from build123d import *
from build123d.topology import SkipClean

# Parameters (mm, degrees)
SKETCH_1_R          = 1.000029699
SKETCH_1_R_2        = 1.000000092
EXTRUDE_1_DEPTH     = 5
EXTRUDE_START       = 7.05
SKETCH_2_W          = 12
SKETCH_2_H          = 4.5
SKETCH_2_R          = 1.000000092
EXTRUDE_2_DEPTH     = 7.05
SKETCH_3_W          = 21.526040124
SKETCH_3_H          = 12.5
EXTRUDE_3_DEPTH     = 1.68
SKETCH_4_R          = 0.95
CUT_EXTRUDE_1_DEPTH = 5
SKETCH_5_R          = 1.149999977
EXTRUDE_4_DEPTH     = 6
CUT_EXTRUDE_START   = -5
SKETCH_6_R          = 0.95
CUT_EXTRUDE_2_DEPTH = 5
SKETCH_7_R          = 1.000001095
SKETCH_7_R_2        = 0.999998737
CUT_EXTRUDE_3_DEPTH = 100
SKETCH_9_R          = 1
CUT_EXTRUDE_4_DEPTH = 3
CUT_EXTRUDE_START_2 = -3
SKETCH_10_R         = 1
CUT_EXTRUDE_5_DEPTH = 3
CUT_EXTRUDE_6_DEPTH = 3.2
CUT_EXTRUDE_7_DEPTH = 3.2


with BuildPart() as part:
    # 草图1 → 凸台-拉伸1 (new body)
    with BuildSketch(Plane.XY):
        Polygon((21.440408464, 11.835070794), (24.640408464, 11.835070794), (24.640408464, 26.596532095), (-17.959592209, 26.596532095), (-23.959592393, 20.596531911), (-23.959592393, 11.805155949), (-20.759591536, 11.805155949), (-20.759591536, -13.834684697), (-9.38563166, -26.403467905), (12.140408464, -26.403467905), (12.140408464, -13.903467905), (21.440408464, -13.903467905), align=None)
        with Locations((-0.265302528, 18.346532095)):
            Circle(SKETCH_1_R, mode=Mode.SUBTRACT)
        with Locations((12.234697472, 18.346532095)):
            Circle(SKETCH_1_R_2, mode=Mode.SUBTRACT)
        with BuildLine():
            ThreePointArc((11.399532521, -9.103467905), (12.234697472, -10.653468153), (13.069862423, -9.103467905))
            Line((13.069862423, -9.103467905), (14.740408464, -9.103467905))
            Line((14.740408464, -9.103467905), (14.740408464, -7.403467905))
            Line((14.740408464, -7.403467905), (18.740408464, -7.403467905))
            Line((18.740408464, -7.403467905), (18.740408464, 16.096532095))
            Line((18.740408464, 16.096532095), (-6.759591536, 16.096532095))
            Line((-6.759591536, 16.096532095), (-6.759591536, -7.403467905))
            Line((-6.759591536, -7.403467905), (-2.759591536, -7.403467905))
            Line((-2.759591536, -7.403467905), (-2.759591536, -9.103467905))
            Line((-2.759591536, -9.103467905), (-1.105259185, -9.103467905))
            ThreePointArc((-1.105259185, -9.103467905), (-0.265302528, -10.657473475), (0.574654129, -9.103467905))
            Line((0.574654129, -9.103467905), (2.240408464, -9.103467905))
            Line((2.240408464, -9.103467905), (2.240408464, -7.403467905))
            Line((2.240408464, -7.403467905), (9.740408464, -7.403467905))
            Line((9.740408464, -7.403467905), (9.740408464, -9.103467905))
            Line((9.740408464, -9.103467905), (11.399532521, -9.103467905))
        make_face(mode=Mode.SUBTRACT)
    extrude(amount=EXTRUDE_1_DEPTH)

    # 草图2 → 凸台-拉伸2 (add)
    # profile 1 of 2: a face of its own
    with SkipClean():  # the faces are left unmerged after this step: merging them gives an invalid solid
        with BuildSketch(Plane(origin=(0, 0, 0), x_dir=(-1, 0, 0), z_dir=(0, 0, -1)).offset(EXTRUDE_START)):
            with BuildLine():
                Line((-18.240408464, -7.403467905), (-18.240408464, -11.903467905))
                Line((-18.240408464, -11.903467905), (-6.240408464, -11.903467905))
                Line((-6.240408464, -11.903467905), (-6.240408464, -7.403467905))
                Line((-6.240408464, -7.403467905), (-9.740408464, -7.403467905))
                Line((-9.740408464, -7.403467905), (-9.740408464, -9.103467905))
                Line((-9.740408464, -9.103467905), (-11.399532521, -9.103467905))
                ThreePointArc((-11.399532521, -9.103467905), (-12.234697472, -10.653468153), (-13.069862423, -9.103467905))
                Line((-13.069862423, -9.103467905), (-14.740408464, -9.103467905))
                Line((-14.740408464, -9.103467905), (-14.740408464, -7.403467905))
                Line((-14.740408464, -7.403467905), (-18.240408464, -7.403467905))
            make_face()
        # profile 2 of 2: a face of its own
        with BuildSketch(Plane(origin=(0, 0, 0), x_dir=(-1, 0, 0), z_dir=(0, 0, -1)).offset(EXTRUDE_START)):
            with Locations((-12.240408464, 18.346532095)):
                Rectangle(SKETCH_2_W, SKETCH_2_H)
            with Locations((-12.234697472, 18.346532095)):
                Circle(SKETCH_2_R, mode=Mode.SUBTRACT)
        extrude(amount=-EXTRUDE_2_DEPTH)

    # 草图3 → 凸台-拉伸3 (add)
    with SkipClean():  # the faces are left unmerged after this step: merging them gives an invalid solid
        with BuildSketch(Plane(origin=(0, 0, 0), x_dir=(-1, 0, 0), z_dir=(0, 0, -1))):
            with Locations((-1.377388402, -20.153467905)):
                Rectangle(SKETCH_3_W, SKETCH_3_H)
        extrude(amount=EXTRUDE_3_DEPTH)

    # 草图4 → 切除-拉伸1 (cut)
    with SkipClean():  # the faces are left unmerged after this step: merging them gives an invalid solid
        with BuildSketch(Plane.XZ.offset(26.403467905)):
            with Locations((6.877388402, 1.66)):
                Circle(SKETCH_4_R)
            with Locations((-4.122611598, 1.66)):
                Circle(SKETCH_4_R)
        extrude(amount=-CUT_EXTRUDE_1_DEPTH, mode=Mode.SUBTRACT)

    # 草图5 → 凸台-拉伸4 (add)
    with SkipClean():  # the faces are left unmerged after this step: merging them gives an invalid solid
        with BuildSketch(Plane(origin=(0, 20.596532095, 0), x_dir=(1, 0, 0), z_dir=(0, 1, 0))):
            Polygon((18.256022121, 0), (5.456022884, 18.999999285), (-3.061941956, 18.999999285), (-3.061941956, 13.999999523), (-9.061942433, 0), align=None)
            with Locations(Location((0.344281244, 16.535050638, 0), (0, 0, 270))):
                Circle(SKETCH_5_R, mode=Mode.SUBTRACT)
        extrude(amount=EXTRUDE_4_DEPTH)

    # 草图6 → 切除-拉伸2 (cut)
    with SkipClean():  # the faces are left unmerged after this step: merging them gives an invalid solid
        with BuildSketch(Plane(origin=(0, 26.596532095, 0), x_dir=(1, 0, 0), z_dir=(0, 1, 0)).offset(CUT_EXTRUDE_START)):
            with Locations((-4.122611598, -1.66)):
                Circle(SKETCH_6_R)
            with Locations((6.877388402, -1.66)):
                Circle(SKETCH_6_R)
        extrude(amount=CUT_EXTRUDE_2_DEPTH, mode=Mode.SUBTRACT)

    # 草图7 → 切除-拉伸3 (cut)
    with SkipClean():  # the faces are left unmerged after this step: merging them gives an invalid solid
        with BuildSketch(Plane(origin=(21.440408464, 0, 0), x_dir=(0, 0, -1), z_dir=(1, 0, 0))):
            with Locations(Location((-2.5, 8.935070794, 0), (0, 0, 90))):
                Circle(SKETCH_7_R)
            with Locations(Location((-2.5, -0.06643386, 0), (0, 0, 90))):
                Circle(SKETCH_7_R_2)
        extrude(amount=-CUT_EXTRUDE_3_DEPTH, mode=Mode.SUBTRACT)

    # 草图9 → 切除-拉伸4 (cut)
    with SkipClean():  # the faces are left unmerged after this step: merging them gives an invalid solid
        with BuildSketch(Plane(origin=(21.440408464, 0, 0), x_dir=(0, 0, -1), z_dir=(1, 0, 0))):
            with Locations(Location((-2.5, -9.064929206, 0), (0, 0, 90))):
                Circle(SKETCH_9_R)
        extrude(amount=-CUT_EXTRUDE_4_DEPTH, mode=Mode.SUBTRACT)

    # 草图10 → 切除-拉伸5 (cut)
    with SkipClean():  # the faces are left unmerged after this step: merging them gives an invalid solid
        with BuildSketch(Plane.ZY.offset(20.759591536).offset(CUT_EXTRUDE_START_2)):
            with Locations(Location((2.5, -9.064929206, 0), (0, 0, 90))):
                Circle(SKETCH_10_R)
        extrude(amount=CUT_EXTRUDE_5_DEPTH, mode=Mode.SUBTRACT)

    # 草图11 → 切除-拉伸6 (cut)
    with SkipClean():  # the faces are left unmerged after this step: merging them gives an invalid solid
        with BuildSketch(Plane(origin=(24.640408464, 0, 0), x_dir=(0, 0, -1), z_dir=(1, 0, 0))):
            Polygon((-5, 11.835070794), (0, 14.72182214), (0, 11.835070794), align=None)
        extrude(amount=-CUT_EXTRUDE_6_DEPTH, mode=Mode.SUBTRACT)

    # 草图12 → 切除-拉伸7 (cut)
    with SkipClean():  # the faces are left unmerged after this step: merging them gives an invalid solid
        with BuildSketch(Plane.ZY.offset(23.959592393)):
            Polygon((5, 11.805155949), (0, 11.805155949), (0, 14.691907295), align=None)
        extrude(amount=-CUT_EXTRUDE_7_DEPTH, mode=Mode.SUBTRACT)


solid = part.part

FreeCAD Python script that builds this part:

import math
import FreeCAD as App
import Part
import Sketcher
Q = App.Units.Quantity

doc = App.newDocument("Part")
body = doc.addObject("PartDesign::Body", "Body")

sketch1 = body.newObject("Sketcher::SketchObject", "Sketch")
sketch1.AttachmentSupport = (doc.getObject("XY_Plane"), [""])
sketch1.MapMode = "FlatFace"
sketch1.addGeometry(Part.LineSegment(App.Vector(21.440408, 11.835071, 0), App.Vector(24.640408, 11.835071, 0)), False)
sketch1.addGeometry(Part.LineSegment(App.Vector(24.640408, 11.835071, 0), App.Vector(24.640408, 26.596532, 0)), False)
sketch1.addGeometry(Part.LineSegment(App.Vector(24.640408, 26.596532, 0), App.Vector(-17.959592, 26.596532, 0)), False)
sketch1.addGeometry(Part.LineSegment(App.Vector(-17.959592, 26.596532, 0), App.Vector(-23.959592, 20.596532, 0)), False)
sketch1.addGeometry(Part.LineSegment(App.Vector(-23.959592, 20.596532, 0), App.Vector(-23.959592, 11.805156, 0)), False)
sketch1.addGeometry(Part.LineSegment(App.Vector(-23.959592, 11.805156, 0), App.Vector(-20.759592, 11.805156, 0)), False)
sketch1.addGeometry(Part.LineSegment(App.Vector(-20.759592, 11.805156, 0), App.Vector(-20.759592, -13.834685, 0)), False)
sketch1.addGeometry(Part.LineSegment(App.Vector(-20.759592, -13.834685, 0), App.Vector(-9.385632, -26.403468, 0)), False)
sketch1.addGeometry(Part.LineSegment(App.Vector(-9.385632, -26.403468, 0), App.Vector(12.140408, -26.403468, 0)), False)
sketch1.addGeometry(Part.LineSegment(App.Vector(12.140408, -26.403468, 0), App.Vector(12.140408, -13.903468, 0)), False)
sketch1.addGeometry(Part.LineSegment(App.Vector(12.140408, -13.903468, 0), App.Vector(21.440408, -13.903468, 0)), False)
sketch1.addGeometry(Part.LineSegment(App.Vector(21.440408, -13.903468, 0), App.Vector(21.440408, 11.835071, 0)), False)
sketch1.addGeometry(Part.ArcOfCircle(Part.Circle(App.Vector(12.234697, -9.653468, 0), App.Vector(0, 0, 1), 1), math.radians(146.632996), math.radians(393.367004)), False)
sketch1.addGeometry(Part.LineSegment(App.Vector(11.399533, -9.103468, 0), App.Vector(9.740408, -9.103468, 0)), False)
sketch1.addGeometry(Part.LineSegment(App.Vector(9.740408, -9.103468, 0), App.Vector(9.740408, -7.403468, 0)), False)
sketch1.addGeometry(Part.LineSegment(App.Vector(9.740408, -7.403468, 0), App.Vector(2.240408, -7.403468, 0)), False)
sketch1.addGeometry(Part.LineSegment(App.Vector(2.240408, -7.403468, 0), App.Vector(2.240408, -9.103468, 0)), False)
sketch1.addGeometry(Part.LineSegment(App.Vector(2.240408, -9.103468, 0), App.Vector(0.574654, -9.103468, 0)), False)
sketch1.addGeometry(Part.ArcOfCircle(Part.Circle(App.Vector(-0.265303, -9.653468, 0), App.Vector(0, 0, 1), 1.004006), math.radians(146.783394), math.radians(393.216606)), False)
sketch1.addGeometry(Part.LineSegment(App.Vector(-1.105259, -9.103468, 0), App.Vector(-2.759592, -9.103468, 0)), False)
sketch1.addGeometry(Part.LineSegment(App.Vector(-2.759592, -9.103468, 0), App.Vector(-2.759592, -7.403468, 0)), False)
sketch1.addGeometry(Part.LineSegment(App.Vector(-2.759592, -7.403468, 0), App.Vector(-6.759592, -7.403468, 0)), False)
sketch1.addGeometry(Part.LineSegment(App.Vector(-6.759592, -7.403468, 0), App.Vector(-6.759592, 16.096532, 0)), False)
sketch1.addGeometry(Part.LineSegment(App.Vector(-6.759592, 16.096532, 0), App.Vector(18.740408, 16.096532, 0)), False)
sketch1.addGeometry(Part.LineSegment(App.Vector(18.740408, 16.096532, 0), App.Vector(18.740408, -7.403468, 0)), False)
sketch1.addGeometry(Part.LineSegment(App.Vector(18.740408, -7.403468, 0), App.Vector(14.740408, -7.403468, 0)), False)
sketch1.addGeometry(Part.LineSegment(App.Vector(14.740408, -7.403468, 0), App.Vector(14.740408, -9.103468, 0)), False)
sketch1.addGeometry(Part.LineSegment(App.Vector(14.740408, -9.103468, 0), App.Vector(13.069862, -9.103468, 0)), False)
sketch1.addGeometry(Part.Circle(App.Vector(-0.265303, 18.346532, 0), App.Vector(0, 0, 1), 1.00003), False)
sketch1.addGeometry(Part.Circle(App.Vector(12.234697, 18.346532, 0), App.Vector(0, 0, 1), 1), False)
sketch1.addConstraint(Sketcher.Constraint("Coincident", 0, 2, 1, 1))
sketch1.addConstraint(Sketcher.Constraint("Coincident", 1, 2, 2, 1))
sketch1.addConstraint(Sketcher.Constraint("Coincident", 2, 2, 3, 1))
sketch1.addConstraint(Sketcher.Constraint("Coincident", 3, 2, 4, 1))
sketch1.addConstraint(Sketcher.Constraint("Coincident", 4, 2, 5, 1))
sketch1.addConstraint(Sketcher.Constraint("Coincident", 5, 2, 6, 1))
sketch1.addConstraint(Sketcher.Constraint("Coincident", 6, 2, 7, 1))
sketch1.addConstraint(Sketcher.Constraint("Coincident", 7, 2, 8, 1))
sketch1.addConstraint(Sketcher.Constraint("Coincident", 8, 2, 9, 1))
sketch1.addConstraint(Sketcher.Constraint("Coincident", 9, 2, 10, 1))
sketch1.addConstraint(Sketcher.Constraint("Coincident", 10, 2, 11, 1))
sketch1.addConstraint(Sketcher.Constraint("Coincident", 11, 2, 0, 1))
sketch1.addConstraint(Sketcher.Constraint("Coincident", 12, 1, 13, 1))
sketch1.addConstraint(Sketcher.Constraint("Coincident", 13, 2, 14, 1))
sketch1.addConstraint(Sketcher.Constraint("Coincident", 14, 2, 15, 1))
sketch1.addConstraint(Sketcher.Constraint("Coincident", 15, 2, 16, 1))
sketch1.addConstraint(Sketcher.Constraint("Coincident", 16, 2, 17, 1))
sketch1.addConstraint(Sketcher.Constraint("Coincident", 17, 2, 18, 2))
sketch1.addConstraint(Sketcher.Constraint("Coincident", 18, 1, 19, 1))
sketch1.addConstraint(Sketcher.Constraint("Coincident", 19, 2, 20, 1))
sketch1.addConstraint(Sketcher.Constraint("Coincident", 20, 2, 21, 1))
sketch1.addConstraint(Sketcher.Constraint("Coincident", 21, 2, 22, 1))
sketch1.addConstraint(Sketcher.Constraint("Coincident", 22, 2, 23, 1))
sketch1.addConstraint(Sketcher.Constraint("Coincident", 23, 2, 24, 1))
sketch1.addConstraint(Sketcher.Constraint("Coincident", 24, 2, 25, 1))
sketch1.addConstraint(Sketcher.Constraint("Coincident", 25, 2, 26, 1))
sketch1.addConstraint(Sketcher.Constraint("Coincident", 26, 2, 27, 1))
sketch1.addConstraint(Sketcher.Constraint("Coincident", 27, 2, 12, 2))
sketch1.addConstraint(Sketcher.Constraint("Horizontal", 0))
sketch1.addConstraint(Sketcher.Constraint("Vertical", 1))
sketch1.addConstraint(Sketcher.Constraint("Horizontal", 2))
sketch1.addConstraint(Sketcher.Constraint("Vertical", 4))
sketch1.addConstraint(Sketcher.Constraint("Horizontal", 5))
sketch1.addConstraint(Sketcher.Constraint("Vertical", 6))
sketch1.addConstraint(Sketcher.Constraint("Horizontal", 8))
sketch1.addConstraint(Sketcher.Constraint("Vertical", 9))
sketch1.addConstraint(Sketcher.Constraint("Horizontal", 10))
sketch1.addConstraint(Sketcher.Constraint("Vertical", 11))
sketch1.addConstraint(Sketcher.Constraint("Horizontal", 13))
sketch1.addConstraint(Sketcher.Constraint("Vertical", 14))
sketch1.addConstraint(Sketcher.Constraint("Horizontal", 15))
sketch1.addConstraint(Sketcher.Constraint("Vertical", 16))
sketch1.addConstraint(Sketcher.Constraint("Horizontal", 17))
sketch1.addConstraint(Sketcher.Constraint("Horizontal", 19))
sketch1.addConstraint(Sketcher.Constraint("Vertical", 20))
sketch1.addConstraint(Sketcher.Constraint("Horizontal", 21))
sketch1.addConstraint(Sketcher.Constraint("Vertical", 22))
sketch1.addConstraint(Sketcher.Constraint("Horizontal", 23))
sketch1.addConstraint(Sketcher.Constraint("Vertical", 24))
sketch1.addConstraint(Sketcher.Constraint("Horizontal", 25))
sketch1.addConstraint(Sketcher.Constraint("Vertical", 26))
sketch1.addConstraint(Sketcher.Constraint("Horizontal", 27))
sketch1.addConstraint(Sketcher.Constraint("Equal", 12, 29))
sketch1.addConstraint(Sketcher.Constraint("Horizontal", 12, 3, 18, 3))
sketch1.addConstraint(Sketcher.Constraint("Horizontal", 28, 3, 29, 3))
sketch1.addConstraint(Sketcher.Constraint("Horizontal", 13, 2, 16, 2))
sketch1.addConstraint(Sketcher.Constraint("Horizontal", 17, 2, 18, 1))
sketch1.addConstraint(Sketcher.Constraint("Horizontal", 15, 2, 20, 2))
sketch1.addConstraint(Sketcher.Constraint("Horizontal", 21, 2, 24, 2))
sketch1.addConstraint(Sketcher.Constraint("Horizontal", 19, 2, 26, 2))
sketch1.addConstraint(Sketcher.Constraint("Vertical", 18, 3, 28, 3))
sketch1.addConstraint(Sketcher.Constraint("Vertical", 12, 3, 29, 3))
sketch1.addConstraint(Sketcher.Constraint("Equal", 0, 5))
sketch1.addConstraint(Sketcher.Constraint("Equal", 21, 25))
sketch1.addConstraint(Sketcher.Constraint("Diameter", 29, Q("2 mm")))
sketch1.addConstraint(Sketcher.Constraint("DistanceX", 21, 2, 21, 1, Q("4 mm")))
sketch1.addConstraint(Sketcher.Constraint("Angle", 3, Q("-135 deg")))
sketch1.addConstraint(Sketcher.Constraint("DistanceX", 0, 1, 0, 2, Q("3.2 mm")))
sketch1.addConstraint(Sketcher.Constraint("DistanceX", 2, 2, 2, 1, Q("42.600001 mm")))
sketch1.addConstraint(Sketcher.Constraint("DistanceX", 10, 1, 10, 2, Q("9.3 mm")))
sketch1.addConstraint(Sketcher.Constraint("DistanceX", 15, 2, 15, 1, Q("7.5 mm")))
sketch1.addConstraint(Sketcher.Constraint("DistanceX", 23, 1, 23, 2, Q("25.5 mm")))
sketch1.addConstraint(Sketcher.Constraint("DistanceY", 9, 1, 9, 2, Q("12.5 mm")))
sketch1.addConstraint(Sketcher.Constraint("DistanceY", 14, 1, 14, 2, Q("1.7 mm")))
sketch1.addConstraint(Sketcher.Constraint("DistanceY", 22, 1, 22, 2, Q("23.5 mm")))
sketch1.addConstraint(Sketcher.Constraint("DistanceY", 18, 3, 28, 3, Q("28 mm")))
sketch1.addConstraint(Sketcher.Constraint("DistanceX", 3, 2, 2, 2, Q("6 mm")))
sketch1.addConstraint(Sketcher.Constraint("DistanceX", 19, 2, 16, 2, Q("5 mm")))
sketch1.addConstraint(Sketcher.Constraint("DistanceX", 5, 2, 22, 2, Q("14 mm")))
sketch1.addConstraint(Sketcher.Constraint("DistanceX", 18, 3, 12, 3, Q("12.5 mm")))
sketch1.addConstraint(Sketcher.Constraint("DistanceY", 9, 2, 12, 1, Q("4.8 mm")))
sketch1.addConstraint(Sketcher.Constraint("DistanceY", 22, 2, 2, 2, Q("10.5 mm")))
sketch1.addConstraint(Sketcher.Constraint("Diameter", 28, Q("2.000059 mm")))
sketch1.addConstraint(Sketcher.Constraint("DistanceY", 29, 3, 1, 2, Q("8.25 mm")))
sketch1.addConstraint(Sketcher.Constraint("Radius", 18, Q("1.004006 mm")))
sketch1.addConstraint(Sketcher.Constraint("DistanceX", 8, 1, 8, 2, Q("21.52604 mm")))
sketch1.addConstraint(Sketcher.Constraint("DistanceY", 1, 1, 1, 2, Q("14.761461 mm")))
sketch1.addConstraint(Sketcher.Constraint("DistanceY", 6, 2, 6, 1, Q("25.639841 mm")))
sketch1.addConstraint(Sketcher.Constraint("DistanceX", 13, 2, 13, 1, Q("1.659124 mm")))
sketch1.addConstraint(Sketcher.Constraint("DistanceY", 4, 2, 4, 1, Q("8.791376 mm")))
sketch1.addConstraint(Sketcher.Constraint("DistanceX", -1, 1, 0, 2, Q("24.640408 mm")))
sketch1.addConstraint(Sketcher.Constraint("DistanceY", -1, 1, 0, 2, Q("11.835071 mm")))
pad1 = body.newObject("PartDesign::Pad", "Pad")
pad1.Profile = sketch1
pad1.Length = 5

sketch2 = body.newObject("Sketcher::SketchObject", "Sketch001")
sketch2.AttachmentSupport = (doc.getObject("XY_Plane"), [""])
sketch2.MapMode = "FlatFace"
sketch2.AttachmentOffset = App.Placement(App.Vector(0, 0, -7.05), App.Rotation())
sketch2.addGeometry(Part.LineSegment(App.Vector(18.240408, -7.403468, 0), App.Vector(18.240408, -11.903468, 0)), False)
sketch2.addGeometry(Part.LineSegment(App.Vector(18.240408, -11.903468, 0), App.Vector(6.240408, -11.903468, 0)), False)
sketch2.addGeometry(Part.LineSegment(App.Vector(6.240408, -11.903468, 0), App.Vector(6.240408, -7.403468, 0)), False)
sketch2.addGeometry(Part.LineSegment(App.Vector(6.240408, -7.403468, 0), App.Vector(9.740408, -7.403468, 0)), False)
sketch2.addGeometry(Part.LineSegment(App.Vector(9.740408, -7.403468, 0), App.Vector(9.740408, -9.103468, 0)), False)
sketch2.addGeometry(Part.LineSegment(App.Vector(9.740408, -9.103468, 0), App.Vector(11.399533, -9.103468, 0)), False)
sketch2.addGeometry(Part.ArcOfCircle(Part.Circle(App.Vector(12.234697, -9.653468, 0), App.Vector(0, 0, 1), 1), math.radians(146.632996), math.radians(393.367004)), False)
sketch2.addGeometry(Part.LineSegment(App.Vector(13.069862, -9.103468, 0), App.Vector(14.740408, -9.103468, 0)), False)
sketch2.addGeometry(Part.LineSegment(App.Vector(14.740408, -9.103468, 0), App.Vector(14.740408, -7.403468, 0)), False)
sketch2.addGeometry(Part.LineSegment(App.Vector(14.740408, -7.403468, 0), App.Vector(18.240408, -7.403468, 0)), False)
sketch2.addGeometry(Part.LineSegment(App.Vector(18.240408, 20.596532, 0), App.Vector(18.240408, 16.096532, 0)), False)
sketch2.addGeometry(Part.LineSegment(App.Vector(18.240408, 16.096532, 0), App.Vector(6.240408, 16.096532, 0)), False)
sketch2.addGeometry(Part.LineSegment(App.Vector(6.240408, 16.096532, 0), App.Vector(6.240408, 20.596532, 0)), False)
sketch2.addGeometry(Part.LineSegment(App.Vector(6.240408, 20.596532, 0), App.Vector(18.240408, 20.596532, 0)), False)
sketch2.addGeometry(Part.Circle(App.Vector(12.234697, 18.346532, 0), App.Vector(0, 0, 1), 1), False)
sketch2.addConstraint(Sketcher.Constraint("Coincident", 0, 2, 1, 1))
sketch2.addConstraint(Sketcher.Constraint("Coincident", 1, 2, 2, 1))
sketch2.addConstraint(Sketcher.Constraint("Coincident", 2, 2, 3, 1))
sketch2.addConstraint(Sketcher.Constraint("Coincident", 3, 2, 4, 1))
sketch2.addConstraint(Sketcher.Constraint("Coincident", 4, 2, 5, 1))
sketch2.addConstraint(Sketcher.Constraint("Coincident", 5, 2, 6, 1))
sketch2.addConstraint(Sketcher.Constraint("Coincident", 6, 2, 7, 1))
sketch2.addConstraint(Sketcher.Constraint("Coincident", 7, 2, 8, 1))
sketch2.addConstraint(Sketcher.Constraint("Coincident", 8, 2, 9, 1))
sketch2.addConstraint(Sketcher.Constraint("Coincident", 9, 2, 0, 1))
sketch2.addConstraint(Sketcher.Constraint("Coincident", 10, 2, 11, 1))
sketch2.addConstraint(Sketcher.Constraint("Coincident", 11, 2, 12, 1))
sketch2.addConstraint(Sketcher.Constraint("Coincident", 12, 2, 13, 1))
sketch2.addConstraint(Sketcher.Constraint("Coincident", 13, 2, 10, 1))
sketch2.addConstraint(Sketcher.Constraint("Vertical", 0))
sketch2.addConstraint(Sketcher.Constraint("Horizontal", 1))
sketch2.addConstraint(Sketcher.Constraint("Vertical", 2))
sketch2.addConstraint(Sketcher.Constraint("Horizontal", 3))
sketch2.addConstraint(Sketcher.Constraint("Vertical", 4))
sketch2.addConstraint(Sketcher.Constraint("Horizontal", 5))
sketch2.addConstraint(Sketcher.Constraint("Horizontal", 7))
sketch2.addConstraint(Sketcher.Constraint("Vertical", 8))
sketch2.addConstraint(Sketcher.Constraint("Horizontal", 9))
sketch2.addConstraint(Sketcher.Constraint("Vertical", 10))
sketch2.addConstraint(Sketcher.Constraint("Horizontal", 11))
sketch2.addConstraint(Sketcher.Constraint("Vertical", 12))
sketch2.addConstraint(Sketcher.Constraint("Horizontal", 13))
sketch2.addConstraint(Sketcher.Constraint("Equal", 6, 14))
sketch2.addConstraint(Sketcher.Constraint("Horizontal", 5, 2, 6, 2))
sketch2.addConstraint(Sketcher.Constraint("Horizontal", 3, 2, 8, 2))
sketch2.addConstraint(Sketcher.Constraint("Vertical", 6, 3, 14, 3))
sketch2.addConstraint(Sketcher.Constraint("Vertical", 9, 2, 10, 2))
sketch2.addConstraint(Sketcher.Constraint("Vertical", 2, 2, 11, 2))
sketch2.addConstraint(Sketcher.Constraint("Equal", 3, 9))
sketch2.addConstraint(Sketcher.Constraint("Equal", 2, 10))
sketch2.addConstraint(Sketcher.Constraint("Diameter", 14, Q("2 mm")))
sketch2.addConstraint(Sketcher.Constraint("DistanceX", 1, 2, 1, 1, Q("12 mm")))
sketch2.addConstraint(Sketcher.Constraint("DistanceX", 3, 1, 3, 2, Q("3.5 mm")))
sketch2.addConstraint(Sketcher.Constraint("DistanceY", 0, 2, 0, 1, Q("4.5 mm")))
sketch2.addConstraint(Sketcher.Constraint("DistanceY", 4, 2, 4, 1, Q("1.7 mm")))
sketch2.addConstraint(Sketcher.Constraint("DistanceY", 6, 3, 14, 3, Q("28 mm")))
sketch2.addConstraint(Sketcher.Constraint("DistanceY", 2, 2, 12, 2, Q("28 mm")))
sketch2.addConstraint(Sketcher.Constraint("DistanceY", 0, 2, 6, 3, Q("2.25 mm")))
sketch2.addConstraint(Sketcher.Constraint("DistanceX", 5, 1, 5, 2, Q("1.659124 mm")))
sketch2.addConstraint(Sketcher.Constraint("DistanceX", -1, 1, 0, 2, Q("18.240408 mm")))
sketch2.addConstraint(Sketcher.Constraint("DistanceY", 6, 3, -1, 1, Q("9.653468 mm")))
pad2 = body.newObject("PartDesign::Pad", "Pad001")
pad2.Profile = sketch2
pad2.Length = 7.05

sketch3 = body.newObject("Sketcher::SketchObject", "Sketch002")
sketch3.AttachmentSupport = (doc.getObject("XY_Plane"), [""])
sketch3.MapMode = "FlatFace"
sketch3.addGeometry(Part.LineSegment(App.Vector(12.140408, -13.903468, 0), App.Vector(12.140408, -26.403468, 0)), False)
sketch3.addGeometry(Part.LineSegment(App.Vector(12.140408, -26.403468, 0), App.Vector(-9.385632, -26.403468, 0)), False)
sketch3.addGeometry(Part.LineSegment(App.Vector(-9.385632, -26.403468, 0), App.Vector(-9.385632, -13.903468, 0)), False)
sketch3.addGeometry(Part.LineSegment(App.Vector(-9.385632, -13.903468, 0), App.Vector(12.140408, -13.903468, 0)), False)
sketch3.addConstraint(Sketcher.Constraint("Coincident", 0, 2, 1, 1))
sketch3.addConstraint(Sketcher.Constraint("Coincident", 1, 2, 2, 1))
sketch3.addConstraint(Sketcher.Constraint("Coincident", 2, 2, 3, 1))
sketch3.addConstraint(Sketcher.Constraint("Coincident", 3, 2, 0, 1))
sketch3.addConstraint(Sketcher.Constraint("Vertical", 0))
sketch3.addConstraint(Sketcher.Constraint("Horizontal", 1))
sketch3.addConstraint(Sketcher.Constraint("Vertical", 2))
sketch3.addConstraint(Sketcher.Constraint("Horizontal", 3))
sketch3.addConstraint(Sketcher.Constraint("DistanceY", 0, 2, 0, 1, Q("12.5 mm")))
sketch3.addConstraint(Sketcher.Constraint("DistanceX", 1, 2, 1, 1, Q("21.52604 mm")))
sketch3.addConstraint(Sketcher.Constraint("DistanceX", -1, 1, 0, 2, Q("12.140408 mm")))
sketch3.addConstraint(Sketcher.Constraint("DistanceY", 0, 2, -1, 1, Q("26.403468 mm")))
pad3 = body.newObject("PartDesign::Pad", "Pad002")
pad3.Profile = sketch3
pad3.Length = 1.68
pad3.Reversed = True

sketch4 = body.newObject("Sketcher::SketchObject", "Sketch003")
sketch4.AttachmentSupport = (doc.getObject("XZ_Plane"), [""])
sketch4.MapMode = "FlatFace"
sketch4.AttachmentOffset = App.Placement(App.Vector(0, 0, 26.403468), App.Rotation())
sketch4.addGeometry(Part.Circle(App.Vector(6.877388, 1.66, 0), App.Vector(0, 0, 1), 0.95), False)
sketch4.addGeometry(Part.Circle(App.Vector(-4.122612, 1.66, 0), App.Vector(0, 0, 1), 0.95), False)
sketch4.addConstraint(Sketcher.Constraint("Equal", 0, 1))
sketch4.addConstraint(Sketcher.Constraint("Horizontal", 0, 3, 1, 3))
sketch4.addConstraint(Sketcher.Constraint("Diameter", 0, Q("1.9 mm")))
sketch4.addConstraint(Sketcher.Constraint("DistanceX", 1, 3, 0, 3, Q("11 mm")))
sketch4.addConstraint(Sketcher.Constraint("DistanceY", -1, 1, 0, 3, Q("1.66 mm")))
sketch4.addConstraint(Sketcher.Constraint("DistanceX", -1, 1, 0, 3, Q("6.877388 mm")))
pocket1 = body.newObject("PartDesign::Pocket", "Pocket")
pocket1.Profile = sketch4
pocket1.Length = 5

sketch5 = body.newObject("Sketcher::SketchObject", "Sketch004")
sketch5.AttachmentSupport = (doc.getObject("XZ_Plane"), [""])
sketch5.MapMode = "FlatFace"
sketch5.AttachmentOffset = App.Placement(App.Vector(0, 0, -20.596532), App.Rotation())
sketch5.addGeometry(Part.LineSegment(App.Vector(18.256022, 0, 0), App.Vector(5.456023, -18.999999, 0)), False)
sketch5.addGeometry(Part.LineSegment(App.Vector(5.456023, -18.999999, 0), App.Vector(-3.061942, -18.999999, 0)), False)
sketch5.addGeometry(Part.LineSegment(App.Vector(-3.061942, -18.999999, 0), App.Vector(-3.061942, -14, 0)), False)
sketch5.addGeometry(Part.LineSegment(App.Vector(-3.061942, -14, 0), App.Vector(-9.061942, 0, 0)), False)
sketch5.addGeometry(Part.LineSegment(App.Vector(-9.061942, 0, 0), App.Vector(18.256022, 0, 0)), False)
sketch5.addGeometry(Part.Circle(App.Vector(0.344281, -16.535051, 0), App.Vector(0, 0, 1), 1.15), False)
sketch5.addConstraint(Sketcher.Constraint("Coincident", 0, 2, 1, 1))
sketch5.addConstraint(Sketcher.Constraint("Coincident", 1, 2, 2, 1))
sketch5.addConstraint(Sketcher.Constraint("Coincident", 2, 2, 3, 1))
sketch5.addConstraint(Sketcher.Constraint("Coincident", 3, 2, 4, 1))
sketch5.addConstraint(Sketcher.Constraint("Coincident", 4, 2, 0, 1))
sketch5.addConstraint(Sketcher.Constraint("Horizontal", 1))
sketch5.addConstraint(Sketcher.Constraint("Vertical", 2))
sketch5.addConstraint(Sketcher.Constraint("Horizontal", 4))
sketch5.addConstraint(Sketcher.Constraint("PointOnObject", 3, 2, -1))
sketch5.addConstraint(Sketcher.Constraint("Diameter", 5, Q("2.3 mm")))
sketch5.addConstraint(Sketcher.Constraint("DistanceY", 2, 1, 2, 2, Q("5 mm")))
sketch5.addConstraint(Sketcher.Constraint("DistanceY", 0, 2, -1, 1, Q("18.999999 mm")))
sketch5.addConstraint(Sketcher.Constraint("DistanceX", 3, 2, 2, 2, Q("6 mm")))
sketch5.addConstraint(Sketcher.Constraint("DistanceX", 0, 2, 4, 2, Q("12.799999 mm")))
sketch5.addConstraint(Sketcher.Constraint("DistanceX", 1, 2, 1, 1, Q("8.517965 mm")))
sketch5.addConstraint(Sketcher.Constraint("DistanceX", -1, 1, 5, 3, Q("0.344281 mm")))
sketch5.addConstraint(Sketcher.Constraint("DistanceY", 5, 3, -1, 1, Q("16.535051 mm")))
sketch5.addConstraint(Sketcher.Constraint("DistanceX", 1, 2, -1, 1, Q("3.061942 mm")))
pad4 = body.newObject("PartDesign::Pad", "Pad003")
pad4.Profile = sketch5
pad4.Length = 6
pad4.Reversed = True

sketch6 = body.newObject("Sketcher::SketchObject", "Sketch005")
sketch6.AttachmentSupport = (doc.getObject("XZ_Plane"), [""])
sketch6.MapMode = "FlatFace"
sketch6.AttachmentOffset = App.Placement(App.Vector(0, 0, -21.596532), App.Rotation())
sketch6.addGeometry(Part.Circle(App.Vector(-4.122612, 1.66, 0), App.Vector(0, 0, 1), 0.95), False)
sketch6.addGeometry(Part.Circle(App.Vector(6.877388, 1.66, 0), App.Vector(0, 0, 1), 0.95), False)
sketch6.addConstraint(Sketcher.Constraint("Equal", 0, 1))
sketch6.addConstraint(Sketcher.Constraint("Horizontal", 0, 3, 1, 3))
sketch6.addConstraint(Sketcher.Constraint("Diameter", 0, Q("1.9 mm")))
sketch6.addConstraint(Sketcher.Constraint("DistanceX", 0, 3, 1, 3, Q("11 mm")))
sketch6.addConstraint(Sketcher.Constraint("DistanceY", -1, 1, 0, 3, Q("1.66 mm")))
sketch6.addConstraint(Sketcher.Constraint("DistanceX", 0, 3, -1, 1, Q("4.122612 mm")))
pocket2 = body.newObject("PartDesign::Pocket", "Pocket001")
pocket2.Profile = sketch6
pocket2.Length = 5

sketch7 = body.newObject("Sketcher::SketchObject", "Sketch006")
sketch7.AttachmentSupport = (doc.getObject("YZ_Plane"), [""])
sketch7.MapMode = "FlatFace"
sketch7.AttachmentOffset = App.Placement(App.Vector(0, 0, 21.440408), App.Rotation())
sketch7.addGeometry(Part.Circle(App.Vector(8.935071, 2.5, 0), App.Vector(0, 0, 1), 1.000001), False)
sketch7.addGeometry(Part.Circle(App.Vector(-0.066434, 2.5, 0), App.Vector(0, 0, 1), 0.999999), False)
sketch7.addConstraint(Sketcher.Constraint("Horizontal", 0, 3, 1, 3))
sketch7.addConstraint(Sketcher.Constraint("DistanceY", -1, 1, 0, 3, Q("2.5 mm")))
sketch7.addConstraint(Sketcher.Constraint("Diameter", 0, Q("2.000002 mm")))
sketch7.addConstraint(Sketcher.Constraint("Diameter", 1, Q("1.999997 mm")))
sketch7.addConstraint(Sketcher.Constraint("DistanceX", -1, 1, 0, 3, Q("8.935071 mm")))
sketch7.addConstraint(Sketcher.Constraint("DistanceX", 1, 3, -1, 1, Q("0.066434 mm")))
pocket3 = body.newObject("PartDesign::Pocket", "Pocket002")
pocket3.Profile = sketch7
pocket3.Length = 100

sketch8 = body.newObject("Sketcher::SketchObject", "Sketch007")
sketch8.AttachmentSupport = (doc.getObject("YZ_Plane"), [""])
sketch8.MapMode = "FlatFace"
sketch8.AttachmentOffset = App.Placement(App.Vector(0, 0, 21.440408), App.Rotation())
sketch8.addGeometry(Part.Circle(App.Vector(-9.064929, 2.5, 0), App.Vector(0, 0, 1), 1), False)
sketch8.addConstraint(Sketcher.Constraint("Diameter", 0, Q("2 mm")))
sketch8.addConstraint(Sketcher.Constraint("DistanceY", -1, 1, 0, 3, Q("2.5 mm")))
sketch8.addConstraint(Sketcher.Constraint("DistanceX", 0, 3, -1, 1, Q("9.064929 mm")))
pocket4 = body.newObject("PartDesign::Pocket", "Pocket003")
pocket4.Profile = sketch8
pocket4.Length = 3

sketch9 = body.newObject("Sketcher::SketchObject", "Sketch008")
sketch9.AttachmentSupport = (doc.getObject("YZ_Plane"), [""])
sketch9.MapMode = "FlatFace"
sketch9.AttachmentOffset = App.Placement(App.Vector(0, 0, -17.759592), App.Rotation())
sketch9.addGeometry(Part.Circle(App.Vector(-9.064929, 2.5, 0), App.Vector(0, 0, 1), 1), False)
sketch9.addConstraint(Sketcher.Constraint("Diameter", 0, Q("2 mm")))
sketch9.addConstraint(Sketcher.Constraint("DistanceY", -1, 1, 0, 3, Q("2.5 mm")))
sketch9.addConstraint(Sketcher.Constraint("DistanceX", 0, 3, -1, 1, Q("9.064929 mm")))
pocket5 = body.newObject("PartDesign::Pocket", "Pocket004")
pocket5.Profile = sketch9
pocket5.Length = 3

sketch10 = body.newObject("Sketcher::SketchObject", "Sketch009")
sketch10.AttachmentSupport = (doc.getObject("YZ_Plane"), [""])
sketch10.MapMode = "FlatFace"
sketch10.AttachmentOffset = App.Placement(App.Vector(0, 0, 24.640408), App.Rotation())
sketch10.addGeometry(Part.LineSegment(App.Vector(14.721822, 0, 0), App.Vector(11.835071, 5, 0)), False)
sketch10.addGeometry(Part.LineSegment(App.Vector(11.835071, 5, 0), App.Vector(11.835071, 0, 0)), False)
sketch10.addGeometry(Part.LineSegment(App.Vector(11.835071, 0, 0), App.Vector(14.721822, 0, 0)), False)
sketch10.addConstraint(Sketcher.Constraint("Coincident", 0, 2, 1, 1))
sketch10.addConstraint(Sketcher.Constraint("Coincident", 1, 2, 2, 1))
sketch10.addConstraint(Sketcher.Constraint("Coincident", 2, 2, 0, 1))
sketch10.addConstraint(Sketcher.Constraint("Vertical", 1))
sketch10.addConstraint(Sketcher.Constraint("Horizontal", 2))
sketch10.addConstraint(Sketcher.Constraint("PointOnObject", 1, 2, -1))
sketch10.addConstraint(Sketcher.Constraint("DistanceY", 1, 2, 1, 1, Q("5 mm")))
sketch10.addConstraint(Sketcher.Constraint("Angle", 0, Q("120 deg")))
sketch10.addConstraint(Sketcher.Constraint("DistanceX", -1, 1, 0, 2, Q("11.835071 mm")))
pocket6 = body.newObject("PartDesign::Pocket", "Pocket005")
pocket6.Profile = sketch10
pocket6.Length = 3.2

sketch11 = body.newObject("Sketcher::SketchObject", "Sketch010")
sketch11.AttachmentSupport = (doc.getObject("YZ_Plane"), [""])
sketch11.MapMode = "FlatFace"
sketch11.AttachmentOffset = App.Placement(App.Vector(0, 0, -23.959592), App.Rotation())
sketch11.addGeometry(Part.LineSegment(App.Vector(11.805156, 0, 0), App.Vector(11.805156, 5, 0)), False)
sketch11.addGeometry(Part.LineSegment(App.Vector(11.805156, 5, 0), App.Vector(14.691907, 0, 0)), False)
sketch11.addGeometry(Part.LineSegment(App.Vector(14.691907, 0, 0), App.Vector(11.805156, 0, 0)), False)
sketch11.addConstraint(Sketcher.Constraint("Coincident", 0, 2, 1, 1))
sketch11.addConstraint(Sketcher.Constraint("Coincident", 1, 2, 2, 1))
sketch11.addConstraint(Sketcher.Constraint("Coincident", 2, 2, 0, 1))
sketch11.addConstraint(Sketcher.Constraint("Vertical", 0))
sketch11.addConstraint(Sketcher.Constraint("Horizontal", 2))
sketch11.addConstraint(Sketcher.Constraint("PointOnObject", 1, 2, -1))
sketch11.addConstraint(Sketcher.Constraint("DistanceY", 0, 1, 0, 2, Q("5 mm")))
sketch11.addConstraint(Sketcher.Constraint("Angle", 1, Q("-60 deg")))
sketch11.addConstraint(Sketcher.Constraint("DistanceX", -1, 1, 0, 2, Q("11.805156 mm")))
pocket7 = body.newObject("PartDesign::Pocket", "Pocket006")
pocket7.Profile = sketch11
pocket7.Length = 3.2
pocket7.Reversed = True

doc.recompute()
